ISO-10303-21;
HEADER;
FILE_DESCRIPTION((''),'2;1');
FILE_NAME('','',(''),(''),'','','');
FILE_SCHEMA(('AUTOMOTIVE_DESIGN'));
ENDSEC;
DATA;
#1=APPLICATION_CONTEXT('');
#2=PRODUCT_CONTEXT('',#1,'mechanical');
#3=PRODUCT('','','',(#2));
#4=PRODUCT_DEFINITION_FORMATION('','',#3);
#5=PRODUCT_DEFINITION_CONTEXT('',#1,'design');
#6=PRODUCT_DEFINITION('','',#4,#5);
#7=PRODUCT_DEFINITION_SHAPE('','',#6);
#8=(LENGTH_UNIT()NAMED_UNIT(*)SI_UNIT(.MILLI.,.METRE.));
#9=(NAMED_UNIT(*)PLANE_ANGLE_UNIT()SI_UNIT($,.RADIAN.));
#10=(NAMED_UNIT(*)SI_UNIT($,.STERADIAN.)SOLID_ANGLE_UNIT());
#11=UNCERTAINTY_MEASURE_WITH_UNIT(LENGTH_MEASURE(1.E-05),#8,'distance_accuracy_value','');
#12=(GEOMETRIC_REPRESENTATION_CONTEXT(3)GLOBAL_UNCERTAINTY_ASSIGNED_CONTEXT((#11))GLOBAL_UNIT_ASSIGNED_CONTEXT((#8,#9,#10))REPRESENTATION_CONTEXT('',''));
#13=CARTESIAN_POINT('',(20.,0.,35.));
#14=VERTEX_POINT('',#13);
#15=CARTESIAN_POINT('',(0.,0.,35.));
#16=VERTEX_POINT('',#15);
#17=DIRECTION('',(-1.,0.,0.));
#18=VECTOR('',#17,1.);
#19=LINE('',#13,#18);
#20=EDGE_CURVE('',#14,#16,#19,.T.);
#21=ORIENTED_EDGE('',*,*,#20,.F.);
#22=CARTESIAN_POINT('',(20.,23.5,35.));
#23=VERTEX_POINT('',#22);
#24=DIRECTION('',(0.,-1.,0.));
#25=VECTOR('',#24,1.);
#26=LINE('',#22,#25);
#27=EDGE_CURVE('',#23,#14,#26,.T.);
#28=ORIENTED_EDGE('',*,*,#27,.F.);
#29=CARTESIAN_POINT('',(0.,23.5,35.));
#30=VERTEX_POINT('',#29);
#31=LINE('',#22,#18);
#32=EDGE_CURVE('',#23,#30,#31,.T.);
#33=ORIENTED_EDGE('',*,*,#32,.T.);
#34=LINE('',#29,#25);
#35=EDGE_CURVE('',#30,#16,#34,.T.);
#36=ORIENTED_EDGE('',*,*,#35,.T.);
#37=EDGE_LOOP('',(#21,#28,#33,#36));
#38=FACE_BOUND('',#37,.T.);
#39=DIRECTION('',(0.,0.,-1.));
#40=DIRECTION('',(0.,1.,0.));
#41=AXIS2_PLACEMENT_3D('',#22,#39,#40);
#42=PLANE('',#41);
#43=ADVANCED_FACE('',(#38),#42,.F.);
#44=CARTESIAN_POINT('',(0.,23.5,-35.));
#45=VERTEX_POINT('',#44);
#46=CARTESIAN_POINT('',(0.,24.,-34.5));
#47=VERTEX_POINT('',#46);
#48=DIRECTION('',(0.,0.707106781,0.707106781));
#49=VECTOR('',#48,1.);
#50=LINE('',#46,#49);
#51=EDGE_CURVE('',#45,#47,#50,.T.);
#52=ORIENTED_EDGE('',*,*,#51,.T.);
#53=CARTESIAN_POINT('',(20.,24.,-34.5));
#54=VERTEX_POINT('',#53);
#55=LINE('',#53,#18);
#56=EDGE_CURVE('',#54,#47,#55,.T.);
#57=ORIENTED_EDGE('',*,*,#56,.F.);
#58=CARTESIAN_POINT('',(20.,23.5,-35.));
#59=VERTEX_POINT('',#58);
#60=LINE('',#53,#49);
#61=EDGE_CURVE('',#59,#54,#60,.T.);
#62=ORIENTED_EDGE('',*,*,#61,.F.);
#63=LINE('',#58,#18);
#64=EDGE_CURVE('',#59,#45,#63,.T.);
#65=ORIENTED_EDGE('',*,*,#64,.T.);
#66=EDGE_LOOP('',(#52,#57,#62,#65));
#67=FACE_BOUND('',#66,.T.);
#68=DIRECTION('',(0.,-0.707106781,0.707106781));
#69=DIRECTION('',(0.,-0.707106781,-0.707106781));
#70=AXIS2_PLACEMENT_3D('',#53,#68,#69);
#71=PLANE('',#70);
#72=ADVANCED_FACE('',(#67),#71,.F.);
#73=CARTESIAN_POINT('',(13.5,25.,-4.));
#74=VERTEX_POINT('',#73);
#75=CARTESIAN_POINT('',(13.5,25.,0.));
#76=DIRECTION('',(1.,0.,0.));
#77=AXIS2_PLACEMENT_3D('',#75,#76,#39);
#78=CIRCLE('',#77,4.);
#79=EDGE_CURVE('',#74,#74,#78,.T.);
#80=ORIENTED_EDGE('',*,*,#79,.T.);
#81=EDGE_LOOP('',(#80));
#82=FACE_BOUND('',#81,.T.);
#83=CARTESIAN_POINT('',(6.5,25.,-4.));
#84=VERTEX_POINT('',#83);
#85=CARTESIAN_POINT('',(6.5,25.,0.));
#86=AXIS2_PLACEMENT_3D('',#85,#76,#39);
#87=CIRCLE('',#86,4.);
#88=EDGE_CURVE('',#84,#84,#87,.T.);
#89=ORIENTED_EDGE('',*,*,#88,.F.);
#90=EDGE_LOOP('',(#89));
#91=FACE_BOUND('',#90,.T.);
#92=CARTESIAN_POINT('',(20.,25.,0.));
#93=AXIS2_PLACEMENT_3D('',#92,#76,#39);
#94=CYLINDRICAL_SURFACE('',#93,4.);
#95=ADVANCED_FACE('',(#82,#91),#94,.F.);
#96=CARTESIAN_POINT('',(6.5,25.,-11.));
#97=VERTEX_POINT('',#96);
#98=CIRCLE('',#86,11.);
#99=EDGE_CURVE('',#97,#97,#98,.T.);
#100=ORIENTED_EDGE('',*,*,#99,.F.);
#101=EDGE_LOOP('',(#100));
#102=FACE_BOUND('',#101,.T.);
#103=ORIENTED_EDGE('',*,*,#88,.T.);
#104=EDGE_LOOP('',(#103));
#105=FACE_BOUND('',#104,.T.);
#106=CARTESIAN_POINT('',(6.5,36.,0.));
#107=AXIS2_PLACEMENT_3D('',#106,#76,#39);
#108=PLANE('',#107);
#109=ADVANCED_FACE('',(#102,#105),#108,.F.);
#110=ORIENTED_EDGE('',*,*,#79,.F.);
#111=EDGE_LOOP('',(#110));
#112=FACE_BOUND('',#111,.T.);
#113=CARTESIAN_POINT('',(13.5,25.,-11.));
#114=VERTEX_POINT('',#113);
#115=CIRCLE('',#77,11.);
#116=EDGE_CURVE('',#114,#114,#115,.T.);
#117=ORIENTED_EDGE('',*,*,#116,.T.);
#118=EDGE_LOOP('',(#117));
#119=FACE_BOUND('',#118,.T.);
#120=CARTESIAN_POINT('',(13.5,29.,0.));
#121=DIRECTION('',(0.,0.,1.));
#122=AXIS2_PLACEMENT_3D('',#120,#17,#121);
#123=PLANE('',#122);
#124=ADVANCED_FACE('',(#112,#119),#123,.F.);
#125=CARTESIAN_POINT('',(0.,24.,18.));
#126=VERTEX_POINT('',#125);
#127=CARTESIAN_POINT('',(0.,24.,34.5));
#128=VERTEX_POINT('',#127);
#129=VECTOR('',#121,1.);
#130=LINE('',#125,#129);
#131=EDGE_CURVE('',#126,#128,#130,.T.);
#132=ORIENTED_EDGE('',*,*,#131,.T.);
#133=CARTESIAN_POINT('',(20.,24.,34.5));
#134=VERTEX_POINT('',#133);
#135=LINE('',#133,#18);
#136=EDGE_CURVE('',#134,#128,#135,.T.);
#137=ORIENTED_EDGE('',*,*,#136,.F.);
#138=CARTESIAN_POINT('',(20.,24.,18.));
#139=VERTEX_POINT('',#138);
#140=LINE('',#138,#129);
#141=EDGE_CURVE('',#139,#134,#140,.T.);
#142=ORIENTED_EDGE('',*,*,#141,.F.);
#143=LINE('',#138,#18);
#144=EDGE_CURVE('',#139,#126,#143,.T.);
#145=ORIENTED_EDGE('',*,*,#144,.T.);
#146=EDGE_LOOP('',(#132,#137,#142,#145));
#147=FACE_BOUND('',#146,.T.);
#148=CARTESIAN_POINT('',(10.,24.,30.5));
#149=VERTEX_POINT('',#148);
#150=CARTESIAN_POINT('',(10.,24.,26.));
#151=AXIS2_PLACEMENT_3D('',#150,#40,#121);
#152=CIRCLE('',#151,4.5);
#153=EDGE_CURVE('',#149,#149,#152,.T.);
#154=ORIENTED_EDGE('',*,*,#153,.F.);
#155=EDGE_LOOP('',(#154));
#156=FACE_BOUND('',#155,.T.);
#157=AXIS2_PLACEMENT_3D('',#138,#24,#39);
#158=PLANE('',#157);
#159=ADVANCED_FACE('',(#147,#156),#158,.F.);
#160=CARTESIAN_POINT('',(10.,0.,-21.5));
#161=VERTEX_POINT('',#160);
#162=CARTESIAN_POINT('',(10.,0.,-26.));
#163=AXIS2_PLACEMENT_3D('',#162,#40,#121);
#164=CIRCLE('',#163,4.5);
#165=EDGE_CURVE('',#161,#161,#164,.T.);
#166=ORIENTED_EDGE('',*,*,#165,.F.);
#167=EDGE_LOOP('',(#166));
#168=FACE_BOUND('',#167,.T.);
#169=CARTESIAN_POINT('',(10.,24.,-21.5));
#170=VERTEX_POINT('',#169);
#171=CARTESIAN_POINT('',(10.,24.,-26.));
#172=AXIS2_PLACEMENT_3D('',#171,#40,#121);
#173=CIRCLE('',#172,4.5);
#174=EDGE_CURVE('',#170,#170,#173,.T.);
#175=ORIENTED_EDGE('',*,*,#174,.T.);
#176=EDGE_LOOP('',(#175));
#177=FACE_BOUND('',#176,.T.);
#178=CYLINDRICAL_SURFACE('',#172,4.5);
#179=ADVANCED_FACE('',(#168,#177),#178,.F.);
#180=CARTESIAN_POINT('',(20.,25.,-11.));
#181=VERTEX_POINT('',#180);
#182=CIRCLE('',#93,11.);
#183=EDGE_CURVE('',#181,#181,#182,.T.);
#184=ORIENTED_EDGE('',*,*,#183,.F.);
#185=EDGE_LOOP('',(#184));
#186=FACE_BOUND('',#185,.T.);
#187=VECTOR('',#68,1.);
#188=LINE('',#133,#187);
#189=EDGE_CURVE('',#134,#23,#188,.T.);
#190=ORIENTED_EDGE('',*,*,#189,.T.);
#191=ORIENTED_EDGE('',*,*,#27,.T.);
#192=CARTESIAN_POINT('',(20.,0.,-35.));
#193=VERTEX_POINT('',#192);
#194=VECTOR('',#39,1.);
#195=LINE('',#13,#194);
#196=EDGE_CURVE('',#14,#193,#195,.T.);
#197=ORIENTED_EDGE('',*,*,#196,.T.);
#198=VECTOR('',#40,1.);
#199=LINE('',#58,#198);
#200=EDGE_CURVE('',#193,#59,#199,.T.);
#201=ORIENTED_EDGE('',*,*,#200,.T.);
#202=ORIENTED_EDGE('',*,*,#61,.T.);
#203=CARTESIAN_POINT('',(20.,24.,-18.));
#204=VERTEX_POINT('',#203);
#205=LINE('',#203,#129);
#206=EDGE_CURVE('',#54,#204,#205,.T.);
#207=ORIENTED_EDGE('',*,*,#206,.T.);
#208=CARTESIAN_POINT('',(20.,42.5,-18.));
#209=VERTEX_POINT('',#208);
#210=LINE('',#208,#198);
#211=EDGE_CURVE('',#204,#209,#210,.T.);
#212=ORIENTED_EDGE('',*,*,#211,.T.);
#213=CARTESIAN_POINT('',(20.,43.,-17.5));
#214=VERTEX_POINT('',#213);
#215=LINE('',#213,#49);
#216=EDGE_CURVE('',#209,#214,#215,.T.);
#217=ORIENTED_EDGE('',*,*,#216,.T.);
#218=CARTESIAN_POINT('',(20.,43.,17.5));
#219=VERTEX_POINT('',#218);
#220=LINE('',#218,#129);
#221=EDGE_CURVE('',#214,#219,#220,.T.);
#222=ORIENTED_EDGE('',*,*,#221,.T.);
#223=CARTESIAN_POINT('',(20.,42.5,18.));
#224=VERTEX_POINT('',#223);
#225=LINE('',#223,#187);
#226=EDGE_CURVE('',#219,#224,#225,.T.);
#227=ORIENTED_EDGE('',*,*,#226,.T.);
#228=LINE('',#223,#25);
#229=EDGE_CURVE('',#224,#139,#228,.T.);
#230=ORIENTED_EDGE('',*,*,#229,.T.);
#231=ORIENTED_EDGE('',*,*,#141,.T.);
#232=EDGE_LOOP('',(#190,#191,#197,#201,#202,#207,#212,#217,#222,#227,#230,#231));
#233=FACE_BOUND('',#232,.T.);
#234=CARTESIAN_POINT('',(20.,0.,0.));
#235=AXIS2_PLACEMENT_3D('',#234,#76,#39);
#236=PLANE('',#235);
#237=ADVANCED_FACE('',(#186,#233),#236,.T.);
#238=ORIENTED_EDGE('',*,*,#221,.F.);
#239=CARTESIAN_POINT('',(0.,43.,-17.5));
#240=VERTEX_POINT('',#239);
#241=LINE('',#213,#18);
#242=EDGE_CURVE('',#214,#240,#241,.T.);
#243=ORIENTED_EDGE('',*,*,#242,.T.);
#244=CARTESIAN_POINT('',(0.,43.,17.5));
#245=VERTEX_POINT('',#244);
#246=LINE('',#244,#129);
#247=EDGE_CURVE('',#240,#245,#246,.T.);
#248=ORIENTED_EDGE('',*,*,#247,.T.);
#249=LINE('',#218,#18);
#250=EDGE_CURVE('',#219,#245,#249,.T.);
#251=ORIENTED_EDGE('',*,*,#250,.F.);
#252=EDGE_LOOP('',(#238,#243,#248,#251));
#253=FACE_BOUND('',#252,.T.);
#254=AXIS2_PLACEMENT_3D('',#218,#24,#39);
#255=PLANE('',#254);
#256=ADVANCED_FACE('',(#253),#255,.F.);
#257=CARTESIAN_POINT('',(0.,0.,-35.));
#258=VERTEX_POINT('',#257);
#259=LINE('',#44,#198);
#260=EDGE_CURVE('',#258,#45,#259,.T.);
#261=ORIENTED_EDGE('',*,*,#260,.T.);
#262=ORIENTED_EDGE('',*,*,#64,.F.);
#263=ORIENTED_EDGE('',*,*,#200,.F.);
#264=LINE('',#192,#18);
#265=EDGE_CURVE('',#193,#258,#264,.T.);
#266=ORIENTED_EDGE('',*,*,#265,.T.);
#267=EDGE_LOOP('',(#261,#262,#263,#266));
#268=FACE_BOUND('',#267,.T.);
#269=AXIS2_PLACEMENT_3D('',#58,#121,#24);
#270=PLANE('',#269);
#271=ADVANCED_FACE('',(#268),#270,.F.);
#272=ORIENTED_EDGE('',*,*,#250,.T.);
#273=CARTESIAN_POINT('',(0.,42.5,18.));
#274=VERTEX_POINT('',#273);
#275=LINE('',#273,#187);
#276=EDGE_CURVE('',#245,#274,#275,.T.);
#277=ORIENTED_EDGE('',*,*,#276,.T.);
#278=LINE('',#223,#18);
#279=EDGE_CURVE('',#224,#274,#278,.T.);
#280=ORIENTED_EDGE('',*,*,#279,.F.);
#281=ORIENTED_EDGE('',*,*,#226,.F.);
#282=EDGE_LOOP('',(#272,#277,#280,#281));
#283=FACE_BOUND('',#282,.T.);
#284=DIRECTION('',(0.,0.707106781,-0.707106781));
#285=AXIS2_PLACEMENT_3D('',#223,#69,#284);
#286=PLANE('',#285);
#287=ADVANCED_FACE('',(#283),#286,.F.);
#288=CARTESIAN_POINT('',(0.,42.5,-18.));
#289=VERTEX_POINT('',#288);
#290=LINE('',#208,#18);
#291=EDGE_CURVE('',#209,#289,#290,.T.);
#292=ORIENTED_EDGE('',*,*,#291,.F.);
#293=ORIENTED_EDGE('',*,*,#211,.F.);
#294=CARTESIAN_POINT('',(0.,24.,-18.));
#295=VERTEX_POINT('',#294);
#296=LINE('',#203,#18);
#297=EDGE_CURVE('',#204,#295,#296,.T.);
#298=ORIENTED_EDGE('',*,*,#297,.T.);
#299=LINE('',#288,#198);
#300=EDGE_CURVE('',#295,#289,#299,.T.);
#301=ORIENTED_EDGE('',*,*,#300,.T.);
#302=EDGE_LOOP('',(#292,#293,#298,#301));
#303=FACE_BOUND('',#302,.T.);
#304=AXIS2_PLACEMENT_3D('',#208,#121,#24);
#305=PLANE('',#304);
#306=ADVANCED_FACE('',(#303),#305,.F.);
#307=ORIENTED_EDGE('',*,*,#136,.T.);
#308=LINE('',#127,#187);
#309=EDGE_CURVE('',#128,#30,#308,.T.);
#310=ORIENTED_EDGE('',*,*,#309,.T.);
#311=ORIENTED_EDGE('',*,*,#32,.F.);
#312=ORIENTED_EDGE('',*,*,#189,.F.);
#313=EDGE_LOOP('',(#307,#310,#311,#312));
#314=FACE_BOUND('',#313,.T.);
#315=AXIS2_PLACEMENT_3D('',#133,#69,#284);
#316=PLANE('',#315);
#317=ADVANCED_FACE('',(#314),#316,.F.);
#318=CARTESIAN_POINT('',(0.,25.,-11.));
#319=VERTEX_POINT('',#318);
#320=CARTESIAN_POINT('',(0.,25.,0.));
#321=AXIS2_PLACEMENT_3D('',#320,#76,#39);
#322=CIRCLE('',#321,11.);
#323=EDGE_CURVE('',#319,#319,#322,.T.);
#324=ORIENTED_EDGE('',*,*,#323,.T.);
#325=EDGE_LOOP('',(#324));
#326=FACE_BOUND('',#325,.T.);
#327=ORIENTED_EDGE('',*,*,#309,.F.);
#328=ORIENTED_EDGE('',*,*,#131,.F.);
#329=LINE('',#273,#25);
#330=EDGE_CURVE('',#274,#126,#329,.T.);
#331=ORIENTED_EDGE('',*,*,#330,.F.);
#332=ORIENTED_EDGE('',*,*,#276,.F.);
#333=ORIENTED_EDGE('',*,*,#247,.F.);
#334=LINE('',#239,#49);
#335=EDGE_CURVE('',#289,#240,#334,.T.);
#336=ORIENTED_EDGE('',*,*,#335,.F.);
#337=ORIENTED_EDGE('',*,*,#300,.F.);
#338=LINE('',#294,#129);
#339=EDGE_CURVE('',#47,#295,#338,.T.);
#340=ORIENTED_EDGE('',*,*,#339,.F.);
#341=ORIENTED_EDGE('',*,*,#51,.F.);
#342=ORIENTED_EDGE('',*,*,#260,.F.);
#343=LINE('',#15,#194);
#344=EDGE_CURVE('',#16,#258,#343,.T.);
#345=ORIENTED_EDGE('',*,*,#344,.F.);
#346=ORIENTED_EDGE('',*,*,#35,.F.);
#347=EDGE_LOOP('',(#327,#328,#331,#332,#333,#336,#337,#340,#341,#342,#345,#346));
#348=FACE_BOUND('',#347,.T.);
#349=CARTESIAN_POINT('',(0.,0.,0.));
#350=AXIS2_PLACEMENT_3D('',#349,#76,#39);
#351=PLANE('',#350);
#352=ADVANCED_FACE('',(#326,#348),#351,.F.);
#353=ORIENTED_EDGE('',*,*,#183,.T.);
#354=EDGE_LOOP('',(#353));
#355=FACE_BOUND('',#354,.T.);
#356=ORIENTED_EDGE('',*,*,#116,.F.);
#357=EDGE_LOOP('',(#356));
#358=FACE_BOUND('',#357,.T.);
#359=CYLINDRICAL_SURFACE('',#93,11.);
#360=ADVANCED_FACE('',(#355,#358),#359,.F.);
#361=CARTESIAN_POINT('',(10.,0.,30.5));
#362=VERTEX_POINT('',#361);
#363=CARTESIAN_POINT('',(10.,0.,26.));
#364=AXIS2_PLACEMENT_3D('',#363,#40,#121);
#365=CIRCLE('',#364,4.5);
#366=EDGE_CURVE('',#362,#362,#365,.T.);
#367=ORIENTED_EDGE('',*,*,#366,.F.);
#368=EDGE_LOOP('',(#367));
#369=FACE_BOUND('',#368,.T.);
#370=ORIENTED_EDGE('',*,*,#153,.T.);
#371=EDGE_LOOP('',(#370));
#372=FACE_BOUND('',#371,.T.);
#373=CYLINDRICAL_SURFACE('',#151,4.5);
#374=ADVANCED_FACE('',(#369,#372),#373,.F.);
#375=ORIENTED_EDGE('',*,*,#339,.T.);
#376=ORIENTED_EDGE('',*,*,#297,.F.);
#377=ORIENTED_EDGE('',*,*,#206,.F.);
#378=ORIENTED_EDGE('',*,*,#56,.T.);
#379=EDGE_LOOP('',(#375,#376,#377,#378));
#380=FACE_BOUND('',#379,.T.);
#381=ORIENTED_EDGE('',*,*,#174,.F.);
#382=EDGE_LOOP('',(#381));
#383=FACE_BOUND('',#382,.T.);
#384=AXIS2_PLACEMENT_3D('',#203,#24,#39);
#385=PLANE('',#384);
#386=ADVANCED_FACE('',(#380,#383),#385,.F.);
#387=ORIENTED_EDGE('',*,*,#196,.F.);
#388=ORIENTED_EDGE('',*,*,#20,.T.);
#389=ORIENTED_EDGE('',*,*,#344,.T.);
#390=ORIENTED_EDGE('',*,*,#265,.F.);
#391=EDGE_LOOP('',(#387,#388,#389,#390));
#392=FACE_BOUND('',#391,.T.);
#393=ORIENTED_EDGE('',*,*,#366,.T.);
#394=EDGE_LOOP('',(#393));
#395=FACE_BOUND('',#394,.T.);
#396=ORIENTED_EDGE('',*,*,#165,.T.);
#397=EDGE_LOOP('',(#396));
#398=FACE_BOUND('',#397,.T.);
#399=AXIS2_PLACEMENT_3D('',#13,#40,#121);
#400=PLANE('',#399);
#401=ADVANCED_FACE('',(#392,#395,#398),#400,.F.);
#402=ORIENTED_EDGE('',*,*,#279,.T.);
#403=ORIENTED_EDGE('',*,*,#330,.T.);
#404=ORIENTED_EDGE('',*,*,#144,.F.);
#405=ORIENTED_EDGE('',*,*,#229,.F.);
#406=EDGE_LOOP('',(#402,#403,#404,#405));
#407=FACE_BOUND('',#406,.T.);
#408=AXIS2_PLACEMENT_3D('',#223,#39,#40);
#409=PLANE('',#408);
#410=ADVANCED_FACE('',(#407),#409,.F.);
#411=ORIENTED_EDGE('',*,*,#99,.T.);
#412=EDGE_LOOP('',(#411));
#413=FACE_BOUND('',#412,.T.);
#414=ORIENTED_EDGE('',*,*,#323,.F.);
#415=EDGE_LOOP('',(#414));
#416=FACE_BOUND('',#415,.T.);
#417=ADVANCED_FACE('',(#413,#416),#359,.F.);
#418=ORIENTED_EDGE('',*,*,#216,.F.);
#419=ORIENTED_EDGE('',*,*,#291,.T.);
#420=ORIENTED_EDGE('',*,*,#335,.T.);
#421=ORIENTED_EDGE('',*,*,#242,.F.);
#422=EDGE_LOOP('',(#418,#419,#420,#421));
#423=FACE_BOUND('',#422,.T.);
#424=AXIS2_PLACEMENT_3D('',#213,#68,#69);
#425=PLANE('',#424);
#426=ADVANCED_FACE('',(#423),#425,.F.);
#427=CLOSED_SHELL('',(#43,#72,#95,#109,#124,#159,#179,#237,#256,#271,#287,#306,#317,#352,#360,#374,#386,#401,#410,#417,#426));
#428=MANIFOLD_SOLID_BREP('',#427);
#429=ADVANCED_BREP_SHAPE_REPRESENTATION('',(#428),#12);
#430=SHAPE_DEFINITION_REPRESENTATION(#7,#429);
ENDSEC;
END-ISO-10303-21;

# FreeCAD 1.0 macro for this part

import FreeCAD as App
import Part
import Sketcher
Q = App.Units.Quantity


def add_polygon(sketch, points):
    """Adds a closed chain of lines whose ends are joined by coincident constraints."""
    first, n = sketch.GeometryCount, len(points)
    for a, b in zip(points, points[1:] + points[:1]):
        sketch.addGeometry(Part.LineSegment(App.Vector(*a, 0), App.Vector(*b, 0)), False)
    for i in range(n):
        sketch.addConstraint(Sketcher.Constraint("Coincident", first + i, 2, first + (i + 1) % n, 1))

doc = App.newDocument("Part")
params = doc.addObject("Spreadsheet::Sheet", "Params")
for row, (alias, value) in enumerate([
    ("sketch1_height", "70 mm"),
    ("sketch1_height2", "35 mm"),
    ("sketch1_width", "18.5 mm"),
    ("sketch1_width2", "23.5 mm"),
    ("sketch1_height3", "16.5 mm"),
    ("pad1_length", "20 mm"),
    ("sketch2_width", "20 mm"),
    ("sketch2_width2", "7 mm"),
    ("sketch2_height", "11 mm"),
    ("groove_angle", "360 deg"),
    ("sketch3_diameter", "9 mm"),
    ("hole_diameter", "9 mm"),
], start=1):
    params.set(f"A{row}", alias)
    params.set(f"B{row}", "=" + value)
    params.setAlias(f"B{row}", alias)

body = doc.addObject("PartDesign::Body", "Body")

sketch1 = body.newObject("Sketcher::SketchObject", "Sketch")
sketch1.AttachmentSupport = (doc.getObject("YZ_Plane"), [""])
sketch1.MapMode = "FlatFace"
add_polygon(sketch1, [(42.5, 18), (24, 18), (24, 34.5), (23.5, 35), (0, 35), (0, -35), (23.5, -35), (24, -34.5), (24, -18), (42.5, -18), (43, -17.5), (43, 17.5)])
sketch1.addConstraint([
    Sketcher.Constraint("Horizontal", 0),
    Sketcher.Constraint("Vertical", 1),
    Sketcher.Constraint("Horizontal", 3),
    Sketcher.Constraint("Vertical", 4),
    Sketcher.Constraint("Horizontal", 5),
    Sketcher.Constraint("Vertical", 7),
    Sketcher.Constraint("Horizontal", 8),
    Sketcher.Constraint("Vertical", 10),
    Sketcher.Constraint("Symmetric", 3, 2, 4, 2, -1, 1),
    Sketcher.Constraint("Symmetric", 1, 2, 6, 2, -1),
    Sketcher.Constraint("Symmetric", 8, 2, 11, 2, -1),
    Sketcher.Constraint("Perpendicular", 2, 6),
    Sketcher.Constraint("Parallel", 6, 9),
    Sketcher.Constraint("Perpendicular", 9, 11),
    Sketcher.Constraint("Vertical", 2, 2, 5, 2),
    Sketcher.Constraint("Equal", 6, 9),
    Sketcher.Constraint("DistanceY", 4, 2, 4, 1, Q("70 mm")),
    Sketcher.Constraint("DistanceY", 10, 1, 10, 2, Q("35 mm")),
    Sketcher.Constraint("DistanceX", 0, 2, 0, 1, Q("18.5 mm")),
    Sketcher.Constraint("DistanceX", 3, 2, 3, 1, Q("23.5 mm")),
    Sketcher.Constraint("DistanceY", 1, 1, 1, 2, Q("16.5 mm")),
])
sketch1.setExpression("Constraints[28]", "Params.sketch1_height")
sketch1.setExpression("Constraints[29]", "Params.sketch1_height2")
sketch1.setExpression("Constraints[30]", "Params.sketch1_width")
sketch1.setExpression("Constraints[31]", "Params.sketch1_width2")
sketch1.setExpression("Constraints[32]", "Params.sketch1_height3")
pad1 = body.newObject("PartDesign::Pad", "Pad")
pad1.Profile = sketch1
pad1.setExpression("Length", "Params.pad1_length")

sketch2 = body.newObject("Sketcher::SketchObject", "Sketch001")
sketch2.AttachmentSupport = (doc.getObject("XY_Plane"), [""])
sketch2.MapMode = "FlatFace"
add_polygon(sketch2, [(6, 36), (0, 36), (0, 25), (20, 25), (20, 36), (14, 36), (14, 29), (6, 29)])
sketch2.addGeometry(Part.LineSegment(App.Vector(20, 25, 0), App.Vector(0, 25, 0)), True)
sketch2.addConstraint([
    Sketcher.Constraint("Horizontal", 0),
    Sketcher.Constraint("Vertical", 1),
    Sketcher.Constraint("Horizontal", 2),
    Sketcher.Constraint("Vertical", 3),
    Sketcher.Constraint("Horizontal", 4),
    Sketcher.Constraint("Vertical", 5),
    Sketcher.Constraint("Horizontal", 6),
    Sketcher.Constraint("Vertical", 7),
    Sketcher.Constraint("Horizontal", 8),
    Sketcher.Constraint("Coincident", 8, 1, 2, 2),
    Sketcher.Constraint("PointOnObject", 0, 2, -2),
    Sketcher.Constraint("PointOnObject", 8, 2, -2),
    Sketcher.Constraint("Horizontal", 0, 2, 3, 2),
    Sketcher.Constraint("Equal", 0, 4),
    Sketcher.Constraint("Equal", 6, 5),
    Sketcher.Constraint("DistanceX", 2, 1, 2, 2, Q("20 mm")),
    Sketcher.Constraint("DistanceX", 6, 2, 6, 1, Q("7 mm")),
    Sketcher.Constraint("DistanceY", 1, 2, 1, 1, Q("11 mm")),
    Sketcher.Constraint("DistanceY", -1, 1, 0, 2, Q("36 mm")),
])
sketch2.setExpression("Constraints[23]", "Params.sketch2_width")
sketch2.setExpression("Constraints[24]", "Params.sketch2_width2")
sketch2.setExpression("Constraints[25]", "Params.sketch2_height")
groove = body.newObject("PartDesign::Groove", "Groove")
groove.Profile = sketch2
groove.ReferenceAxis = (sketch2, ["Axis0"])
groove.setExpression("Angle", "Params.groove_angle")

sketch3 = body.newObject("Sketcher::SketchObject", "Sketch002")
sketch3.AttachmentSupport = (doc.getObject("XZ_Plane"), [""])
sketch3.MapMode = "FlatFace"
sketch3.AttachmentOffset = App.Placement(App.Vector(0, 0, -24), App.Rotation())
sketch3.addGeometry([
    Part.Circle(App.Vector(10, 26, 0), App.Vector(0, 0, 1), 4.5),
    Part.Circle(App.Vector(10, -26, 0), App.Vector(0, 0, 1), 4.5),
], False)
sketch3.addConstraint([
    Sketcher.Constraint("Equal", 0, 1),
    Sketcher.Constraint("Symmetric", 0, 3, 1, 3, -1),
    Sketcher.Constraint("Diameter", 0, Q("9 mm")),
    Sketcher.Constraint("DistanceX", -1, 1, 0, 3, Q("10 mm")),
    Sketcher.Constraint("DistanceY", -1, 1, 0, 3, Q("26 mm")),
])
sketch3.setExpression("Constraints[2]", "Params.sketch3_diameter")
doc.recompute()
hole = body.newObject("PartDesign::Hole", "Hole")
hole.Profile = sketch3
hole.ThreadType = "None"
hole.setExpression("Diameter", "Params.hole_diameter")
hole.DepthType = "ThroughAll"
hole.Reversed = True

doc.recompute()
